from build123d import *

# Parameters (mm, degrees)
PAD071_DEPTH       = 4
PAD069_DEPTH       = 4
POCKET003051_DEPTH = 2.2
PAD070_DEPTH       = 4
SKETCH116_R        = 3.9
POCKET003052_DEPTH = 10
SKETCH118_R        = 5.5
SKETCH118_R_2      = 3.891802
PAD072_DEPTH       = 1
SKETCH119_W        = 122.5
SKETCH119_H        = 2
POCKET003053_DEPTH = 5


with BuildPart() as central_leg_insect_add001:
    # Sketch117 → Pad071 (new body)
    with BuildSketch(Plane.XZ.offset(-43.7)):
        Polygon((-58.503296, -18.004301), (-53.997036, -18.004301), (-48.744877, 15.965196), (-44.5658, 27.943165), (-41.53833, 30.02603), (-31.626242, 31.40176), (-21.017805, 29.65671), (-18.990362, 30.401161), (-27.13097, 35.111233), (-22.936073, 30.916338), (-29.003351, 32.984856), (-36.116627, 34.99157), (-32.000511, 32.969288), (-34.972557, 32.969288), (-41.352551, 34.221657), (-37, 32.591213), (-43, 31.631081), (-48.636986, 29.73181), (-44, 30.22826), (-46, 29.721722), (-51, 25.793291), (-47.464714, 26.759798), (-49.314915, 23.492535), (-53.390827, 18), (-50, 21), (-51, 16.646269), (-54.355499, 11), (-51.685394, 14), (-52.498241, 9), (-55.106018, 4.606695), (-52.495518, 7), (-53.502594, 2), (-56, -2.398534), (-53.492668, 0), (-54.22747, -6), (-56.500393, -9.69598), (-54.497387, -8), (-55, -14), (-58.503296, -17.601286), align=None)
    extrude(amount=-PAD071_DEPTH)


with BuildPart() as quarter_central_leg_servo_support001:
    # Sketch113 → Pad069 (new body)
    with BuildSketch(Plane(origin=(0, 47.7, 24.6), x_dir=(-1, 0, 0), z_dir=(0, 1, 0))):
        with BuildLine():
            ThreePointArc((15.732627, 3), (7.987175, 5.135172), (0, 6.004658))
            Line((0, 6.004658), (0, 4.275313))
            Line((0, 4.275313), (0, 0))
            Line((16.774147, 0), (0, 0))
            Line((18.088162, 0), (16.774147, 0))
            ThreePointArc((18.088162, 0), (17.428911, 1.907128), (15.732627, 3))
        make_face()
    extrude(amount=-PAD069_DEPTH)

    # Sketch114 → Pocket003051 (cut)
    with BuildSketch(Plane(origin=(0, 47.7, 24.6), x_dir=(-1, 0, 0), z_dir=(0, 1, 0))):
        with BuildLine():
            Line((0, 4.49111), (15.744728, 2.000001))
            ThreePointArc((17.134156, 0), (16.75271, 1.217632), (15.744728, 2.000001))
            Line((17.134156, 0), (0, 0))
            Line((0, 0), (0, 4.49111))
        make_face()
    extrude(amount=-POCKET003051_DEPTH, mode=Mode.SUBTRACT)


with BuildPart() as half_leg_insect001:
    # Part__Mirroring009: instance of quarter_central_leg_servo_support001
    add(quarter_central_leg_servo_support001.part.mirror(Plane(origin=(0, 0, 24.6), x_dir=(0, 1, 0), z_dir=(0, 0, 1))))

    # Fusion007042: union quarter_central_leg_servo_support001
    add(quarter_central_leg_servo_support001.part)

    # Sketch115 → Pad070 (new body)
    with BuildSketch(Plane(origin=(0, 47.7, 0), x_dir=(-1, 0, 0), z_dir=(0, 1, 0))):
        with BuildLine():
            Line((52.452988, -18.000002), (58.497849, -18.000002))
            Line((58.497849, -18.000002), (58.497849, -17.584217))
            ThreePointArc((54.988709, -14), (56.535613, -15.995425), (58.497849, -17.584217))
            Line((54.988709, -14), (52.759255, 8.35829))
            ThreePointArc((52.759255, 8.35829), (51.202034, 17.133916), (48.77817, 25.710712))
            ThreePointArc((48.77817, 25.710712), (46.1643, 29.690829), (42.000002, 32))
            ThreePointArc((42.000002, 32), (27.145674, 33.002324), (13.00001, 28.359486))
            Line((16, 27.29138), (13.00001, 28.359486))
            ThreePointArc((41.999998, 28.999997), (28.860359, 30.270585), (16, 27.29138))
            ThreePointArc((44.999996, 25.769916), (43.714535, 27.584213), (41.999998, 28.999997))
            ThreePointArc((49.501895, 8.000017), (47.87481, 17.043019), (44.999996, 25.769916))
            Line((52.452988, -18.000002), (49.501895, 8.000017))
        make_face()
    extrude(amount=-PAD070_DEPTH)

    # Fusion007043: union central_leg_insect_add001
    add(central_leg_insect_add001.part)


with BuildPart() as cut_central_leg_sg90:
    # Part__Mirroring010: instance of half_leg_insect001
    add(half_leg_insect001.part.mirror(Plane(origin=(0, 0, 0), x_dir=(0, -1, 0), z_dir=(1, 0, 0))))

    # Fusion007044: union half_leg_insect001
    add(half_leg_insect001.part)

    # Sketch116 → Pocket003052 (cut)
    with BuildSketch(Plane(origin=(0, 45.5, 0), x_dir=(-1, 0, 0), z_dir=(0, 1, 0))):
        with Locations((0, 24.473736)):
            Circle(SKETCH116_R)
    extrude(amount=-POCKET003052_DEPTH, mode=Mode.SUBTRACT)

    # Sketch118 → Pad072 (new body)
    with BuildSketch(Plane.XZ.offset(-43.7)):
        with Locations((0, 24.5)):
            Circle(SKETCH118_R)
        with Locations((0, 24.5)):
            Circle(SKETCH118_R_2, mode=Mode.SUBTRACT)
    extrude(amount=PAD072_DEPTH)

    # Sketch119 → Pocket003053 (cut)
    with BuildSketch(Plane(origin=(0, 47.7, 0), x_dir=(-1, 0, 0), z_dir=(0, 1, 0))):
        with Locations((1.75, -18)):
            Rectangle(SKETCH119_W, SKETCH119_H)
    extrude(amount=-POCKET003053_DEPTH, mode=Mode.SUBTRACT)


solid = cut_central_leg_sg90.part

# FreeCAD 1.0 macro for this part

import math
import FreeCAD as App
import Part
import Sketcher

V = App.Vector
Q = App.Units.Quantity

doc = App.newDocument("Part")
body = doc.addObject("PartDesign::Body", "Body")

sketch1 = body.newObject("Sketcher::SketchObject", "Sketch")
sketch1.AttachmentSupport = (doc.getObject("XZ_Plane"), [""])
sketch1.MapMode = "FlatFace"
sketch1.AttachmentOffset = App.Placement(V(0, 0, -43.7), App.Rotation())
sketch1.addGeometry(Part.LineSegment(V(-58.503296, -18.004301, 0), V(-53.997036, -18.004301, 0)), False)
sketch1.addGeometry(Part.LineSegment(V(-53.997036, -18.004301, 0), V(-48.744877, 15.965196, 0)), False)
sketch1.addGeometry(Part.LineSegment(V(-48.744877, 15.965196, 0), V(-44.5658, 27.943165, 0)), False)
sketch1.addGeometry(Part.LineSegment(V(-44.5658, 27.943165, 0), V(-41.53833, 30.02603, 0)), False)
sketch1.addGeometry(Part.LineSegment(V(-41.53833, 30.02603, 0), V(-31.626242, 31.40176, 0)), False)
sketch1.addGeometry(Part.LineSegment(V(-31.626242, 31.40176, 0), V(-21.017805, 29.65671, 0)), False)
sketch1.addGeometry(Part.LineSegment(V(-21.017805, 29.65671, 0), V(-18.990362, 30.401161, 0)), False)
sketch1.addGeometry(Part.LineSegment(V(-18.990362, 30.401161, 0), V(-27.13097, 35.111233, 0)), False)
sketch1.addGeometry(Part.LineSegment(V(-27.13097, 35.111233, 0), V(-22.936073, 30.916338, 0)), False)
sketch1.addGeometry(Part.LineSegment(V(-22.936073, 30.916338, 0), V(-29.003351, 32.984856, 0)), False)
sketch1.addGeometry(Part.LineSegment(V(-29.003351, 32.984856, 0), V(-36.116627, 34.99157, 0)), False)
sketch1.addGeometry(Part.LineSegment(V(-36.116627, 34.99157, 0), V(-32.000511, 32.969288, 0)), False)
sketch1.addGeometry(Part.LineSegment(V(-32.000511, 32.969288, 0), V(-34.972557, 32.969288, 0)), False)
sketch1.addGeometry(Part.LineSegment(V(-34.972557, 32.969288, 0), V(-41.352551, 34.221657, 0)), False)
sketch1.addGeometry(Part.LineSegment(V(-41.352551, 34.221657, 0), V(-37, 32.591213, 0)), False)
sketch1.addGeometry(Part.LineSegment(V(-37, 32.591213, 0), V(-43, 31.631081, 0)), False)
sketch1.addGeometry(Part.LineSegment(V(-43, 31.631081, 0), V(-48.636986, 29.73181, 0)), False)
sketch1.addGeometry(Part.LineSegment(V(-48.636986, 29.73181, 0), V(-44, 30.22826, 0)), False)
sketch1.addGeometry(Part.LineSegment(V(-44, 30.22826, 0), V(-46, 29.721722, 0)), False)
sketch1.addGeometry(Part.LineSegment(V(-46, 29.721722, 0), V(-51, 25.793291, 0)), False)
sketch1.addGeometry(Part.LineSegment(V(-51, 25.793291, 0), V(-47.464714, 26.759798, 0)), False)
sketch1.addGeometry(Part.LineSegment(V(-47.464714, 26.759798, 0), V(-49.314915, 23.492535, 0)), False)
sketch1.addGeometry(Part.LineSegment(V(-49.314915, 23.492535, 0), V(-53.390827, 18, 0)), False)
sketch1.addGeometry(Part.LineSegment(V(-53.390827, 18, 0), V(-50, 21, 0)), False)
sketch1.addGeometry(Part.LineSegment(V(-50, 21, 0), V(-51, 16.646269, 0)), False)
sketch1.addGeometry(Part.LineSegment(V(-51, 16.646269, 0), V(-54.355499, 11, 0)), False)
sketch1.addGeometry(Part.LineSegment(V(-54.355499, 11, 0), V(-51.685394, 14, 0)), False)
sketch1.addGeometry(Part.LineSegment(V(-51.685394, 14, 0), V(-52.498241, 9, 0)), False)
sketch1.addGeometry(Part.LineSegment(V(-52.498241, 9, 0), V(-55.106018, 4.606695, 0)), False)
sketch1.addGeometry(Part.LineSegment(V(-55.106018, 4.606695, 0), V(-52.495518, 7, 0)), False)
sketch1.addGeometry(Part.LineSegment(V(-52.495518, 7, 0), V(-53.502594, 2, 0)), False)
sketch1.addGeometry(Part.LineSegment(V(-53.502594, 2, 0), V(-56, -2.398534, 0)), False)
sketch1.addGeometry(Part.LineSegment(V(-56, -2.398534, 0), V(-53.492668, 0, 0)), False)
sketch1.addGeometry(Part.LineSegment(V(-53.492668, 0, 0), V(-54.22747, -6, 0)), False)
sketch1.addGeometry(Part.LineSegment(V(-54.22747, -6, 0), V(-56.500393, -9.69598, 0)), False)
sketch1.addGeometry(Part.LineSegment(V(-56.500393, -9.69598, 0), V(-54.497387, -8, 0)), False)
sketch1.addGeometry(Part.LineSegment(V(-54.497387, -8, 0), V(-55, -14, 0)), False)
sketch1.addGeometry(Part.LineSegment(V(-55, -14, 0), V(-58.503296, -17.601286, 0)), False)
sketch1.addGeometry(Part.LineSegment(V(-58.503296, -17.601286, 0), V(-58.503296, -18.004301, 0)), False)
sketch1.addConstraint(Sketcher.Constraint("Coincident", 0, 2, 1, 1))
sketch1.addConstraint(Sketcher.Constraint("Coincident", 1, 2, 2, 1))
sketch1.addConstraint(Sketcher.Constraint("Coincident", 2, 2, 3, 1))
sketch1.addConstraint(Sketcher.Constraint("Coincident", 3, 2, 4, 1))
sketch1.addConstraint(Sketcher.Constraint("Coincident", 4, 2, 5, 1))
sketch1.addConstraint(Sketcher.Constraint("Coincident", 5, 2, 6, 1))
sketch1.addConstraint(Sketcher.Constraint("Coincident", 6, 2, 7, 1))
sketch1.addConstraint(Sketcher.Constraint("Coincident", 7, 2, 8, 1))
sketch1.addConstraint(Sketcher.Constraint("Coincident", 8, 2, 9, 1))
sketch1.addConstraint(Sketcher.Constraint("Coincident", 9, 2, 10, 1))
sketch1.addConstraint(Sketcher.Constraint("Coincident", 10, 2, 11, 1))
sketch1.addConstraint(Sketcher.Constraint("Coincident", 11, 2, 12, 1))
sketch1.addConstraint(Sketcher.Constraint("Coincident", 12, 2, 13, 1))
sketch1.addConstraint(Sketcher.Constraint("Coincident", 13, 2, 14, 1))
sketch1.addConstraint(Sketcher.Constraint("Coincident", 14, 2, 15, 1))
sketch1.addConstraint(Sketcher.Constraint("Coincident", 15, 2, 16, 1))
sketch1.addConstraint(Sketcher.Constraint("Coincident", 16, 2, 17, 1))
sketch1.addConstraint(Sketcher.Constraint("Coincident", 17, 2, 18, 1))
sketch1.addConstraint(Sketcher.Constraint("Coincident", 18, 2, 19, 1))
sketch1.addConstraint(Sketcher.Constraint("Coincident", 19, 2, 20, 1))
sketch1.addConstraint(Sketcher.Constraint("Coincident", 20, 2, 21, 1))
sketch1.addConstraint(Sketcher.Constraint("Coincident", 21, 2, 22, 1))
sketch1.addConstraint(Sketcher.Constraint("Coincident", 22, 2, 23, 1))
sketch1.addConstraint(Sketcher.Constraint("Coincident", 23, 2, 24, 1))
sketch1.addConstraint(Sketcher.Constraint("Coincident", 24, 2, 25, 1))
sketch1.addConstraint(Sketcher.Constraint("Coincident", 25, 2, 26, 1))
sketch1.addConstraint(Sketcher.Constraint("Coincident", 26, 2, 27, 1))
sketch1.addConstraint(Sketcher.Constraint("Coincident", 27, 2, 28, 1))
sketch1.addConstraint(Sketcher.Constraint("Coincident", 28, 2, 29, 1))
sketch1.addConstraint(Sketcher.Constraint("Coincident", 29, 2, 30, 1))
sketch1.addConstraint(Sketcher.Constraint("Coincident", 30, 2, 31, 1))
sketch1.addConstraint(Sketcher.Constraint("Coincident", 31, 2, 32, 1))
sketch1.addConstraint(Sketcher.Constraint("Coincident", 32, 2, 33, 1))
sketch1.addConstraint(Sketcher.Constraint("Coincident", 33, 2, 34, 1))
sketch1.addConstraint(Sketcher.Constraint("Coincident", 34, 2, 35, 1))
sketch1.addConstraint(Sketcher.Constraint("Coincident", 35, 2, 36, 1))
sketch1.addConstraint(Sketcher.Constraint("Coincident", 36, 2, 37, 1))
sketch1.addConstraint(Sketcher.Constraint("Coincident", 37, 2, 38, 1))
sketch1.addConstraint(Sketcher.Constraint("Coincident", 38, 2, 0, 1))
sketch1.addConstraint(Sketcher.Constraint("Horizontal", 0))
sketch1.addConstraint(Sketcher.Constraint("Horizontal", 12))
sketch1.addConstraint(Sketcher.Constraint("Vertical", 38))
sketch1.addConstraint(Sketcher.Constraint("PointOnObject", 32, 2, -1))
sketch1.addConstraint(Sketcher.Constraint("Vertical", 19, 2, 24, 2))
sketch1.addConstraint(Sketcher.Constraint("Angle", 8, Q("-44.999986 deg")))
sketch1.addConstraint(Sketcher.Constraint("DistanceX", 14, 2, -1, 1, 37.0))
sketch1.addConstraint(Sketcher.Constraint("DistanceX", 15, 2, -1, 1, 43.0))
sketch1.addConstraint(Sketcher.Constraint("DistanceX", 17, 2, -1, 1, 44.0))
sketch1.addConstraint(Sketcher.Constraint("DistanceX", 18, 2, -1, 1, 46.0))
sketch1.addConstraint(Sketcher.Constraint("DistanceX", 19, 2, -1, 1, 51.0))
sketch1.addConstraint(Sketcher.Constraint("DistanceY", -1, 1, 22, 2, 18.0))
sketch1.addConstraint(Sketcher.Constraint("DistanceX", 23, 2, -1, 1, 50.0))
sketch1.addConstraint(Sketcher.Constraint("DistanceY", -1, 1, 23, 2, 21.0))
sketch1.addConstraint(Sketcher.Constraint("DistanceY", -1, 1, 25, 2, 11.0))
sketch1.addConstraint(Sketcher.Constraint("DistanceY", -1, 1, 26, 2, 14.0))
sketch1.addConstraint(Sketcher.Constraint("DistanceY", -1, 1, 27, 2, 9.0))
sketch1.addConstraint(Sketcher.Constraint("DistanceY", -1, 1, 29, 2, 7.0))
sketch1.addConstraint(Sketcher.Constraint("DistanceY", -1, 1, 30, 2, 2.0))
sketch1.addConstraint(Sketcher.Constraint("DistanceX", 31, 2, -1, 1, 56.0))
sketch1.addConstraint(Sketcher.Constraint("DistanceY", 33, 2, -1, 1, 6.0))
sketch1.addConstraint(Sketcher.Constraint("DistanceY", 35, 2, -1, 1, 8.0))
sketch1.addConstraint(Sketcher.Constraint("DistanceX", 36, 2, -1, 1, 55.0))
sketch1.addConstraint(Sketcher.Constraint("DistanceY", 36, 2, -1, 1, 14.0))
sketch1.addConstraint(Sketcher.Constraint("Distance", 6, 2.159799))
sketch1.addConstraint(Sketcher.Constraint("Distance", 24, 4.467099))
sketch1.addConstraint(Sketcher.Constraint("DistanceX", 0, 1, 0, 2, 4.50626))
sketch1.addConstraint(Sketcher.Constraint("DistanceY", 0, 2, -1, 1, 18.004301))
sketch1.addConstraint(Sketcher.Constraint("DistanceX", 2, 2, -1, 1, 44.5658))
sketch1.addConstraint(Sketcher.Constraint("DistanceY", -1, 1, 20, 2, 26.759798))
sketch1.addConstraint(Sketcher.Constraint("DistanceX", 25, 2, -1, 1, 54.355499))
sketch1.addConstraint(Sketcher.Constraint("DistanceY", 6, 2, 4, 2, 1.000599))
sketch1.addConstraint(Sketcher.Constraint("DistanceX", 21, 2, 20, 2, 1.850201))
sketch1.addConstraint(Sketcher.Constraint("DistanceY", 28, 2, 1, 2, 11.358501))
sketch1.addConstraint(Sketcher.Constraint("DistanceX", 28, 2, 29, 2, 2.6105))
sketch1.addConstraint(Sketcher.Constraint("DistanceX", 30, 2, 26, 2, 1.8172))
sketch1.addConstraint(Sketcher.Constraint("DistanceX", 33, 2, 32, 2, 0.734802))
sketch1.addConstraint(Sketcher.Constraint("DistanceX", 34, 2, 30, 2, 2.997799))
sketch1.addConstraint(Sketcher.Constraint("Distance", 8, 5.932479))
sketch1.addConstraint(Sketcher.Constraint("Distance", 11, 4.58607))
sketch1.addConstraint(Sketcher.Constraint("Distance", 13, 6.50175))
sketch1.addConstraint(Sketcher.Constraint("Distance", 18, 2.063148))
sketch1.addConstraint(Sketcher.Constraint("Distance", 19, 6.358661))
sketch1.addConstraint(Sketcher.Constraint("Distance", 20, 3.665022))
sketch1.addConstraint(Sketcher.Constraint("Distance", 23, 4.527439))
sketch1.addConstraint(Sketcher.Constraint("Distance", 26, 4.01615))
sketch1.addConstraint(Sketcher.Constraint("Distance", 27, 5.065641))
sketch1.addConstraint(Sketcher.Constraint("Distance", 30, 5.100412))
sketch1.addConstraint(Sketcher.Constraint("DistanceX", 12, 2, 12, 1, 2.972046))
sketch1.addConstraint(Sketcher.Constraint("DistanceY", 38, 2, 38, 1, 0.403015))
sketch1.addConstraint(Sketcher.Constraint("DistanceX", 3, 2, -1, 1, 41.53833))
sketch1.addConstraint(Sketcher.Constraint("DistanceY", -1, 1, 3, 2, 30.02603))
sketch1.addConstraint(Sketcher.Constraint("DistanceY", -1, 1, 4, 2, 31.40176))
sketch1.addConstraint(Sketcher.Constraint("DistanceY", -1, 1, 5, 2, 29.65671))
sketch1.addConstraint(Sketcher.Constraint("DistanceX", 7, 2, -1, 1, 27.13097))
sketch1.addConstraint(Sketcher.Constraint("DistanceX", 9, 2, -1, 1, 29.003351))
sketch1.addConstraint(Sketcher.Constraint("DistanceY", -1, 1, 10, 2, 34.99157))
sketch1.addConstraint(Sketcher.Constraint("DistanceX", 11, 2, -1, 1, 32.000511))
sketch1.addConstraint(Sketcher.Constraint("DistanceX", 13, 2, -1, 1, 41.352551))
sketch1.addConstraint(Sketcher.Constraint("DistanceY", -1, 1, 15, 2, 31.631081))
sketch1.addConstraint(Sketcher.Constraint("DistanceY", -1, 1, 16, 2, 29.73181))
sketch1.addConstraint(Sketcher.Constraint("DistanceY", -1, 1, 17, 2, 30.22826))
sketch1.addConstraint(Sketcher.Constraint("DistanceX", 32, 2, -1, 1, 53.492668))
sketch1.addConstraint(Sketcher.Constraint("DistanceY", 34, 2, -1, 1, 9.69598))
sketch1.addConstraint(Sketcher.Constraint("DistanceX", 0, 2, 1, 2, 5.252159))
sketch1.addConstraint(Sketcher.Constraint("DistanceY", 1, 2, 2, 2, 11.977969))
sketch1.addConstraint(Sketcher.Constraint("DistanceX", 3, 2, 4, 2, 9.912088))
sketch1.addConstraint(Sketcher.Constraint("DistanceX", 0, 2, 5, 2, 32.979231))
sketch1.addConstraint(Sketcher.Constraint("DistanceX", 4, 2, 6, 2, 12.63588))
sketch1.addConstraint(Sketcher.Constraint("DistanceY", 8, 2, 4, 2, 0.485422))
sketch1.addConstraint(Sketcher.Constraint("DistanceY", 8, 2, 9, 2, 2.068518))
sketch1.addConstraint(Sketcher.Constraint("DistanceY", 11, 2, 9, 2, 0.015568))
sketch1.addConstraint(Sketcher.Constraint("DistanceX", 16, 2, 20, 2, 1.172272))
sketch1.addConstraint(Sketcher.Constraint("DistanceY", 21, 2, 2, 2, 4.45063))
sketch1.addConstraint(Sketcher.Constraint("DistanceY", 31, 2, 28, 2, 7.005229))
sketch1.addConstraint(Sketcher.Constraint("DistanceX", 35, 2, 32, 2, 1.004719))
sketch1.addConstraint(Sketcher.Constraint("Distance", 1, 34.373128))
sketch1.addConstraint(Sketcher.Constraint("Distance", 14, 4.647908))
pad1 = body.newObject("PartDesign::Pad", "Pad")
pad1.Profile = sketch1
pad1.Length = 4
pad1.Reversed = True
body2 = doc.addObject("PartDesign::Body", "Body001")

sketch2 = body2.newObject("Sketcher::SketchObject", "Sketch001")
sketch2.AttachmentSupport = (doc.getObject("XZ_Plane001"), [""])
sketch2.MapMode = "FlatFace"
sketch2.AttachmentOffset = App.Placement(V(0, 0, -47.7), App.Rotation())
sketch2.addGeometry(Part.ArcOfCircle(Part.Circle(V(1.410321, -19.470861, 0), V(0, 0, 1), 50.095375), math.radians(91.613245), math.radians(110.011344)), False)
sketch2.addGeometry(Part.LineSegment(V(0, 30.604658, 0), V(0, 24.6, 0)), False)
sketch2.addGeometry(Part.LineSegment(V(0, 24.6, 0), V(-18.088162, 24.6, 0)), False)
sketch2.addGeometry(Part.ArcOfCircle(Part.Circle(V(-15.000002, 24.600001, 0), V(0, 0, 1), 3.08816), math.radians(103.723513), math.radians(180.000017)), False)
sketch2.addConstraint(Sketcher.Constraint("Coincident", 0, 1, 1, 1))
sketch2.addConstraint(Sketcher.Constraint("Coincident", 1, 2, 2, 1))
sketch2.addConstraint(Sketcher.Constraint("Coincident", 2, 2, 3, 2))
sketch2.addConstraint(Sketcher.Constraint("Coincident", 3, 1, 0, 2))
sketch2.addConstraint(Sketcher.Constraint("Vertical", 1))
sketch2.addConstraint(Sketcher.Constraint("Horizontal", 2))
sketch2.addConstraint(Sketcher.Constraint("PointOnObject", 0, 1, -2))
sketch2.addConstraint(Sketcher.Constraint("Horizontal", 3, 3, 1, 2))
sketch2.addConstraint(Sketcher.Constraint("DistanceX", 3, 3, -1, 1, 15.000002))
sketch2.addConstraint(Sketcher.Constraint("DistanceY", 3, 3, 3, 1, 2.999999))
sketch2.addConstraint(Sketcher.Constraint("DistanceY", -1, 1, 3, 3, 24.600001))
sketch2.addConstraint(Sketcher.Constraint("Radius", 3, 3.08816))
sketch2.addConstraint(Sketcher.Constraint("Radius", 0, 50.095375))
sketch2.addConstraint(Sketcher.Constraint("DistanceY", 1, 2, 1, 1, 6.004658))
pad2 = body2.newObject("PartDesign::Pad", "Pad001")
pad2.Profile = sketch2
pad2.Length = 4

sketch3 = body2.newObject("Sketcher::SketchObject", "Sketch002")
sketch3.AttachmentSupport = (doc.getObject("XZ_Plane001"), [""])
sketch3.MapMode = "FlatFace"
sketch3.AttachmentOffset = App.Placement(V(0, 0, -47.7), App.Rotation())
sketch3.addGeometry(Part.LineSegment(V(-15.744728, 26.600001, 0), V(0, 29.09111, 0)), False)
sketch3.addGeometry(Part.LineSegment(V(0, 29.09111, 0), V(0, 24.6, 0)), False)
sketch3.addGeometry(Part.LineSegment(V(0, 24.6, 0), V(-17.134156, 24.6, 0)), False)
sketch3.addGeometry(Part.ArcOfCircle(Part.Circle(V(-14.999997, 24.599998, 0), V(0, 0, 1), 2.134159), math.radians(110.423575), math.radians(179.999953)), False)
sketch3.addConstraint(Sketcher.Constraint("Coincident", 0, 2, 1, 1))
sketch3.addConstraint(Sketcher.Constraint("Coincident", 1, 2, 2, 1))
sketch3.addConstraint(Sketcher.Constraint("Coincident", 2, 2, 3, 2))
sketch3.addConstraint(Sketcher.Constraint("Coincident", 3, 1, 0, 1))
sketch3.addConstraint(Sketcher.Constraint("Vertical", 1))
sketch3.addConstraint(Sketcher.Constraint("Horizontal", 2))
sketch3.addConstraint(Sketcher.Constraint("PointOnObject", 0, 2, -2))
sketch3.addConstraint(Sketcher.Constraint("Horizontal", 3, 3, 1, 2))
sketch3.addConstraint(Sketcher.Constraint("DistanceY", 2, 2, 3, 1, 2.000001))
sketch3.addConstraint(Sketcher.Constraint("DistanceY", -1, 1, 3, 3, 24.599998))
sketch3.addConstraint(Sketcher.Constraint("Radius", 3, 2.134159))
sketch3.addConstraint(Sketcher.Constraint("DistanceY", 1, 2, 1, 1, 4.49111))
sketch3.addConstraint(Sketcher.Constraint("Distance", 0, 15.94058))
pocket1 = body2.newObject("PartDesign::Pocket", "Pocket")
pocket1.Profile = sketch3
pocket1.Length = 2.2
pocket1.Reversed = True
body3 = doc.addObject("PartDesign::Body", "Body002")
doc.recompute()

mirroring = doc.addObject("Part::Mirroring", "Mirroring")
mirroring.Source = body2
mirroring.Base = V(0, 0, 24.6)
mirroring.Normal = V(0, 0, 1)
body3.BaseFeature = mirroring
doc.recompute()

boolean = body3.newObject("PartDesign::Boolean", "Boolean")
boolean.Type = "Fuse"
boolean.addObjects([body2])

sketch4 = body3.newObject("Sketcher::SketchObject", "Sketch003")
sketch4.AttachmentSupport = (doc.getObject("XZ_Plane002"), [""])
sketch4.MapMode = "FlatFace"
sketch4.AttachmentOffset = App.Placement(V(0, 0, -47.7), App.Rotation())
sketch4.addGeometry(Part.LineSegment(V(-52.452988, -18.000002, 0), V(-58.497849, -18.000002, 0)), False)
sketch4.addGeometry(Part.LineSegment(V(-58.497849, -18.000002, 0), V(-58.497849, -17.584217, 0)), False)
sketch4.addGeometry(Part.ArcOfCircle(Part.Circle(V(-64.372175, -8.323011, 0), V(0, 0, 1), 10.967116), math.radians(-57.613293), math.radians(-31.1739)), False)
sketch4.addGeometry(Part.LineSegment(V(-54.988709, -14, 0), V(-52.759255, 8.35829, 0)), False)
sketch4.addGeometry(Part.ArcOfCircle(Part.Circle(V(35.874654, -2.843681, 0), V(0, 0, 1), 89.338983), math.radians(161.360144), math.radians(172.796879)), False)
sketch4.addGeometry(Part.ArcOfCircle(Part.Circle(V(-39.398592, 22.399208, 0), V(0, 0, 1), 9.946987), math.radians(105.160715), math.radians(160.554182)), False)
sketch4.addGeometry(Part.ArcOfCircle(Part.Circle(V(-31.998298, -5.653228, 0), V(0, 0, 1), 38.958949), math.radians(60.813833), math.radians(104.875775)), False)
sketch4.addGeometry(Part.LineSegment(V(-13.00001, 28.359486, 0), V(-16, 27.29138, 0)), False)
sketch4.addGeometry(Part.ArcOfCircle(Part.Circle(V(-31.543485, -10.5585, 0), V(0, 0, 1), 40.917152), math.radians(67.673936), math.radians(104.806373)), False)
sketch4.addGeometry(Part.ArcOfCircle(Part.Circle(V(-37.528264, 21.838598, 0), V(0, 0, 1), 8.442869), math.radians(121.981556), math.radians(152.248502)), False)
sketch4.addGeometry(Part.ArcOfCircle(Part.Circle(V(15.705928, 0.935214, 0), V(0, 0, 1), 65.589417), math.radians(157.750604), math.radians(173.81653)), False)
sketch4.addGeometry(Part.LineSegment(V(-49.501895, 8.000017, 0), V(-52.452988, -18.000002, 0)), False)
sketch4.addConstraint(Sketcher.Constraint("Coincident", 0, 2, 1, 1))
sketch4.addConstraint(Sketcher.Constraint("Coincident", 1, 2, 2, 1))
sketch4.addConstraint(Sketcher.Constraint("Coincident", 2, 2, 3, 1))
sketch4.addConstraint(Sketcher.Constraint("Coincident", 3, 2, 4, 2))
sketch4.addConstraint(Sketcher.Constraint("Coincident", 4, 1, 5, 2))
sketch4.addConstraint(Sketcher.Constraint("Coincident", 5, 1, 6, 2))
sketch4.addConstraint(Sketcher.Constraint("Coincident", 6, 1, 7, 1))
sketch4.addConstraint(Sketcher.Constraint("Coincident", 7, 2, 8, 1))
sketch4.addConstraint(Sketcher.Constraint("Coincident", 8, 2, 9, 1))
sketch4.addConstraint(Sketcher.Constraint("Coincident", 9, 2, 10, 1))
sketch4.addConstraint(Sketcher.Constraint("Coincident", 10, 2, 11, 1))
sketch4.addConstraint(Sketcher.Constraint("Coincident", 11, 2, 0, 1))
sketch4.addConstraint(Sketcher.Constraint("Horizontal", 0))
sketch4.addConstraint(Sketcher.Constraint("Vertical", 1))
sketch4.addConstraint(Sketcher.Constraint("DistanceY", 0, 2, -1, 1, 18.000002))
sketch4.addConstraint(Sketcher.Constraint("DistanceY", 2, 2, -1, 1, 14.0))
sketch4.addConstraint(Sketcher.Constraint("DistanceY", -1, 1, 5, 1, 32.0))
sketch4.addConstraint(Sketcher.Constraint("DistanceX", 7, 2, -1, 1, 16.0))
sketch4.addConstraint(Sketcher.Constraint("DistanceX", 8, 2, -1, 1, 41.999998))
sketch4.addConstraint(Sketcher.Constraint("DistanceX", 9, 2, 8, 2, 2.999998))
sketch4.addConstraint(Sketcher.Constraint("Radius", 6, 38.958949))
sketch4.addConstraint(Sketcher.Constraint("Radius", 8, 40.917152))
sketch4.addConstraint(Sketcher.Constraint("Radius", 9, 8.442869))
sketch4.addConstraint(Sketcher.Constraint("Radius", 2, 10.967116))
sketch4.addConstraint(Sketcher.Constraint("Radius", 4, 89.338983))
sketch4.addConstraint(Sketcher.Constraint("Radius", 5, 9.946987))
sketch4.addConstraint(Sketcher.Constraint("Radius", 10, 65.589417))
sketch4.addConstraint(Sketcher.Constraint("DistanceX", 0, 2, 0, 1, 6.044861))
sketch4.addConstraint(Sketcher.Constraint("DistanceX", 6, 3, -1, 1, 31.998298))
sketch4.addConstraint(Sketcher.Constraint("DistanceY", 8, 3, -1, 1, 10.5585))
sketch4.addConstraint(Sketcher.Constraint("DistanceY", -1, 1, 9, 3, 21.838598))
sketch4.addConstraint(Sketcher.Constraint("DistanceY", 2, 3, 3, 2, 16.681301))
sketch4.addConstraint(Sketcher.Constraint("DistanceY", 9, 3, 8, 2, 7.161399))
sketch4.addConstraint(Sketcher.Constraint("DistanceX", 10, 2, 9, 2, 4.501899))
sketch4.addConstraint(Sketcher.Constraint("DistanceY", 10, 2, 9, 2, 17.769899))
sketch4.addConstraint(Sketcher.Constraint("Distance", 3, 22.46917))
sketch4.addConstraint(Sketcher.Constraint("Distance", 7, 3.184461))
sketch4.addConstraint(Sketcher.Constraint("DistanceY", 1, 1, 1, 2, 0.415785))
sketch4.addConstraint(Sketcher.Constraint("DistanceY", 2, 3, -1, 1, 8.323011))
sketch4.addConstraint(Sketcher.Constraint("DistanceY", 4, 3, -1, 1, 2.843681))
sketch4.addConstraint(Sketcher.Constraint("DistanceY", 6, 3, -1, 1, 5.653228))
sketch4.addConstraint(Sketcher.Constraint("DistanceX", 0, 2, -1, 1, 58.497849))
sketch4.addConstraint(Sketcher.Constraint("DistanceX", 4, 1, -1, 1, 48.77817))
pad3 = body3.newObject("PartDesign::Pad", "Pad002")
pad3.Profile = sketch4
pad3.Length = 4
doc.recompute()

boolean2 = body3.newObject("PartDesign::Boolean", "Boolean001")
boolean2.Type = "Fuse"
boolean2.addObjects([body])
body4 = doc.addObject("PartDesign::Body", "Body003")
doc.recompute()

mirroring2 = doc.addObject("Part::Mirroring", "Mirroring001")
mirroring2.Source = body3
mirroring2.Base = V(0, 0, 0)
mirroring2.Normal = V(1, 0, 0)
body4.BaseFeature = mirroring2
doc.recompute()

boolean3 = body4.newObject("PartDesign::Boolean", "Boolean002")
boolean3.Type = "Fuse"
boolean3.addObjects([body3])

sketch5 = body4.newObject("Sketcher::SketchObject", "Sketch004")
sketch5.AttachmentSupport = (doc.getObject("XZ_Plane003"), [""])
sketch5.MapMode = "FlatFace"
sketch5.AttachmentOffset = App.Placement(V(0, 0, -45.5), App.Rotation())
sketch5.addGeometry(Part.Circle(V(0, 24.473736, 0), V(0, 0, 1), 3.9), False)
sketch5.addConstraint(Sketcher.Constraint("PointOnObject", 0, 3, -2))
sketch5.addConstraint(Sketcher.Constraint("Diameter", 0, 7.8))
sketch5.addConstraint(Sketcher.Constraint("DistanceY", -1, 1, 0, 3, 24.473736))
pocket2 = body4.newObject("PartDesign::Pocket", "Pocket001")
pocket2.Profile = sketch5
pocket2.Length = 10
pocket2.Reversed = True

sketch6 = body4.newObject("Sketcher::SketchObject", "Sketch005")
sketch6.AttachmentSupport = (doc.getObject("XZ_Plane003"), [""])
sketch6.MapMode = "FlatFace"
sketch6.AttachmentOffset = App.Placement(V(0, 0, -43.7), App.Rotation())
sketch6.addGeometry(Part.Circle(V(0, 24.5, 0), V(0, 0, 1), 5.5), False)
sketch6.addGeometry(Part.Circle(V(0, 24.5, 0), V(0, 0, 1), 3.891802), False)
sketch6.addConstraint(Sketcher.Constraint("Coincident", 1, 3, 0, 3))
sketch6.addConstraint(Sketcher.Constraint("PointOnObject", 0, 3, -2))
sketch6.addConstraint(Sketcher.Constraint("Diameter", 0, 11.0))
sketch6.addConstraint(Sketcher.Constraint("DistanceY", -1, 1, 0, 3, 24.5))
sketch6.addConstraint(Sketcher.Constraint("Diameter", 1, 7.783604))
pad4 = body4.newObject("PartDesign::Pad", "Pad003")
pad4.Profile = sketch6
pad4.Length = 1

sketch7 = body4.newObject("Sketcher::SketchObject", "Sketch006")
sketch7.AttachmentSupport = (doc.getObject("XZ_Plane003"), [""])
sketch7.MapMode = "FlatFace"
sketch7.AttachmentOffset = App.Placement(V(0, 0, -47.7), App.Rotation())
sketch7.addGeometry(Part.LineSegment(V(59.5, -17, 0), V(59.5, -19, 0)), False)
sketch7.addGeometry(Part.LineSegment(V(59.5, -19, 0), V(-63, -19, 0)), False)
sketch7.addGeometry(Part.LineSegment(V(-63, -19, 0), V(-63, -17, 0)), False)
sketch7.addGeometry(Part.LineSegment(V(-63, -17, 0), V(59.5, -17, 0)), False)
sketch7.addConstraint(Sketcher.Constraint("Coincident", 0, 2, 1, 1))
sketch7.addConstraint(Sketcher.Constraint("Coincident", 1, 2, 2, 1))
sketch7.addConstraint(Sketcher.Constraint("Coincident", 2, 2, 3, 1))
sketch7.addConstraint(Sketcher.Constraint("Coincident", 3, 2, 0, 1))
sketch7.addConstraint(Sketcher.Constraint("Vertical", 0))
sketch7.addConstraint(Sketcher.Constraint("Horizontal", 1))
sketch7.addConstraint(Sketcher.Constraint("Vertical", 2))
sketch7.addConstraint(Sketcher.Constraint("Horizontal", 3))
sketch7.addConstraint(Sketcher.Constraint("DistanceY", 0, 2, 0, 1, 2.0))
sketch7.addConstraint(Sketcher.Constraint("DistanceX", 1, 2, 1, 1, 122.5))
sketch7.addConstraint(Sketcher.Constraint("DistanceY", 0, 2, -1, 1, 19.0))
sketch7.addConstraint(Sketcher.Constraint("DistanceX", 1, 2, -1, 1, 63.0))
pocket3 = body4.newObject("PartDesign::Pocket", "Pocket002")
pocket3.Profile = sketch7
pocket3.Length = 5
pocket3.Reversed = True
mirroring.Visibility = False
mirroring2.Visibility = False

doc.recompute()
